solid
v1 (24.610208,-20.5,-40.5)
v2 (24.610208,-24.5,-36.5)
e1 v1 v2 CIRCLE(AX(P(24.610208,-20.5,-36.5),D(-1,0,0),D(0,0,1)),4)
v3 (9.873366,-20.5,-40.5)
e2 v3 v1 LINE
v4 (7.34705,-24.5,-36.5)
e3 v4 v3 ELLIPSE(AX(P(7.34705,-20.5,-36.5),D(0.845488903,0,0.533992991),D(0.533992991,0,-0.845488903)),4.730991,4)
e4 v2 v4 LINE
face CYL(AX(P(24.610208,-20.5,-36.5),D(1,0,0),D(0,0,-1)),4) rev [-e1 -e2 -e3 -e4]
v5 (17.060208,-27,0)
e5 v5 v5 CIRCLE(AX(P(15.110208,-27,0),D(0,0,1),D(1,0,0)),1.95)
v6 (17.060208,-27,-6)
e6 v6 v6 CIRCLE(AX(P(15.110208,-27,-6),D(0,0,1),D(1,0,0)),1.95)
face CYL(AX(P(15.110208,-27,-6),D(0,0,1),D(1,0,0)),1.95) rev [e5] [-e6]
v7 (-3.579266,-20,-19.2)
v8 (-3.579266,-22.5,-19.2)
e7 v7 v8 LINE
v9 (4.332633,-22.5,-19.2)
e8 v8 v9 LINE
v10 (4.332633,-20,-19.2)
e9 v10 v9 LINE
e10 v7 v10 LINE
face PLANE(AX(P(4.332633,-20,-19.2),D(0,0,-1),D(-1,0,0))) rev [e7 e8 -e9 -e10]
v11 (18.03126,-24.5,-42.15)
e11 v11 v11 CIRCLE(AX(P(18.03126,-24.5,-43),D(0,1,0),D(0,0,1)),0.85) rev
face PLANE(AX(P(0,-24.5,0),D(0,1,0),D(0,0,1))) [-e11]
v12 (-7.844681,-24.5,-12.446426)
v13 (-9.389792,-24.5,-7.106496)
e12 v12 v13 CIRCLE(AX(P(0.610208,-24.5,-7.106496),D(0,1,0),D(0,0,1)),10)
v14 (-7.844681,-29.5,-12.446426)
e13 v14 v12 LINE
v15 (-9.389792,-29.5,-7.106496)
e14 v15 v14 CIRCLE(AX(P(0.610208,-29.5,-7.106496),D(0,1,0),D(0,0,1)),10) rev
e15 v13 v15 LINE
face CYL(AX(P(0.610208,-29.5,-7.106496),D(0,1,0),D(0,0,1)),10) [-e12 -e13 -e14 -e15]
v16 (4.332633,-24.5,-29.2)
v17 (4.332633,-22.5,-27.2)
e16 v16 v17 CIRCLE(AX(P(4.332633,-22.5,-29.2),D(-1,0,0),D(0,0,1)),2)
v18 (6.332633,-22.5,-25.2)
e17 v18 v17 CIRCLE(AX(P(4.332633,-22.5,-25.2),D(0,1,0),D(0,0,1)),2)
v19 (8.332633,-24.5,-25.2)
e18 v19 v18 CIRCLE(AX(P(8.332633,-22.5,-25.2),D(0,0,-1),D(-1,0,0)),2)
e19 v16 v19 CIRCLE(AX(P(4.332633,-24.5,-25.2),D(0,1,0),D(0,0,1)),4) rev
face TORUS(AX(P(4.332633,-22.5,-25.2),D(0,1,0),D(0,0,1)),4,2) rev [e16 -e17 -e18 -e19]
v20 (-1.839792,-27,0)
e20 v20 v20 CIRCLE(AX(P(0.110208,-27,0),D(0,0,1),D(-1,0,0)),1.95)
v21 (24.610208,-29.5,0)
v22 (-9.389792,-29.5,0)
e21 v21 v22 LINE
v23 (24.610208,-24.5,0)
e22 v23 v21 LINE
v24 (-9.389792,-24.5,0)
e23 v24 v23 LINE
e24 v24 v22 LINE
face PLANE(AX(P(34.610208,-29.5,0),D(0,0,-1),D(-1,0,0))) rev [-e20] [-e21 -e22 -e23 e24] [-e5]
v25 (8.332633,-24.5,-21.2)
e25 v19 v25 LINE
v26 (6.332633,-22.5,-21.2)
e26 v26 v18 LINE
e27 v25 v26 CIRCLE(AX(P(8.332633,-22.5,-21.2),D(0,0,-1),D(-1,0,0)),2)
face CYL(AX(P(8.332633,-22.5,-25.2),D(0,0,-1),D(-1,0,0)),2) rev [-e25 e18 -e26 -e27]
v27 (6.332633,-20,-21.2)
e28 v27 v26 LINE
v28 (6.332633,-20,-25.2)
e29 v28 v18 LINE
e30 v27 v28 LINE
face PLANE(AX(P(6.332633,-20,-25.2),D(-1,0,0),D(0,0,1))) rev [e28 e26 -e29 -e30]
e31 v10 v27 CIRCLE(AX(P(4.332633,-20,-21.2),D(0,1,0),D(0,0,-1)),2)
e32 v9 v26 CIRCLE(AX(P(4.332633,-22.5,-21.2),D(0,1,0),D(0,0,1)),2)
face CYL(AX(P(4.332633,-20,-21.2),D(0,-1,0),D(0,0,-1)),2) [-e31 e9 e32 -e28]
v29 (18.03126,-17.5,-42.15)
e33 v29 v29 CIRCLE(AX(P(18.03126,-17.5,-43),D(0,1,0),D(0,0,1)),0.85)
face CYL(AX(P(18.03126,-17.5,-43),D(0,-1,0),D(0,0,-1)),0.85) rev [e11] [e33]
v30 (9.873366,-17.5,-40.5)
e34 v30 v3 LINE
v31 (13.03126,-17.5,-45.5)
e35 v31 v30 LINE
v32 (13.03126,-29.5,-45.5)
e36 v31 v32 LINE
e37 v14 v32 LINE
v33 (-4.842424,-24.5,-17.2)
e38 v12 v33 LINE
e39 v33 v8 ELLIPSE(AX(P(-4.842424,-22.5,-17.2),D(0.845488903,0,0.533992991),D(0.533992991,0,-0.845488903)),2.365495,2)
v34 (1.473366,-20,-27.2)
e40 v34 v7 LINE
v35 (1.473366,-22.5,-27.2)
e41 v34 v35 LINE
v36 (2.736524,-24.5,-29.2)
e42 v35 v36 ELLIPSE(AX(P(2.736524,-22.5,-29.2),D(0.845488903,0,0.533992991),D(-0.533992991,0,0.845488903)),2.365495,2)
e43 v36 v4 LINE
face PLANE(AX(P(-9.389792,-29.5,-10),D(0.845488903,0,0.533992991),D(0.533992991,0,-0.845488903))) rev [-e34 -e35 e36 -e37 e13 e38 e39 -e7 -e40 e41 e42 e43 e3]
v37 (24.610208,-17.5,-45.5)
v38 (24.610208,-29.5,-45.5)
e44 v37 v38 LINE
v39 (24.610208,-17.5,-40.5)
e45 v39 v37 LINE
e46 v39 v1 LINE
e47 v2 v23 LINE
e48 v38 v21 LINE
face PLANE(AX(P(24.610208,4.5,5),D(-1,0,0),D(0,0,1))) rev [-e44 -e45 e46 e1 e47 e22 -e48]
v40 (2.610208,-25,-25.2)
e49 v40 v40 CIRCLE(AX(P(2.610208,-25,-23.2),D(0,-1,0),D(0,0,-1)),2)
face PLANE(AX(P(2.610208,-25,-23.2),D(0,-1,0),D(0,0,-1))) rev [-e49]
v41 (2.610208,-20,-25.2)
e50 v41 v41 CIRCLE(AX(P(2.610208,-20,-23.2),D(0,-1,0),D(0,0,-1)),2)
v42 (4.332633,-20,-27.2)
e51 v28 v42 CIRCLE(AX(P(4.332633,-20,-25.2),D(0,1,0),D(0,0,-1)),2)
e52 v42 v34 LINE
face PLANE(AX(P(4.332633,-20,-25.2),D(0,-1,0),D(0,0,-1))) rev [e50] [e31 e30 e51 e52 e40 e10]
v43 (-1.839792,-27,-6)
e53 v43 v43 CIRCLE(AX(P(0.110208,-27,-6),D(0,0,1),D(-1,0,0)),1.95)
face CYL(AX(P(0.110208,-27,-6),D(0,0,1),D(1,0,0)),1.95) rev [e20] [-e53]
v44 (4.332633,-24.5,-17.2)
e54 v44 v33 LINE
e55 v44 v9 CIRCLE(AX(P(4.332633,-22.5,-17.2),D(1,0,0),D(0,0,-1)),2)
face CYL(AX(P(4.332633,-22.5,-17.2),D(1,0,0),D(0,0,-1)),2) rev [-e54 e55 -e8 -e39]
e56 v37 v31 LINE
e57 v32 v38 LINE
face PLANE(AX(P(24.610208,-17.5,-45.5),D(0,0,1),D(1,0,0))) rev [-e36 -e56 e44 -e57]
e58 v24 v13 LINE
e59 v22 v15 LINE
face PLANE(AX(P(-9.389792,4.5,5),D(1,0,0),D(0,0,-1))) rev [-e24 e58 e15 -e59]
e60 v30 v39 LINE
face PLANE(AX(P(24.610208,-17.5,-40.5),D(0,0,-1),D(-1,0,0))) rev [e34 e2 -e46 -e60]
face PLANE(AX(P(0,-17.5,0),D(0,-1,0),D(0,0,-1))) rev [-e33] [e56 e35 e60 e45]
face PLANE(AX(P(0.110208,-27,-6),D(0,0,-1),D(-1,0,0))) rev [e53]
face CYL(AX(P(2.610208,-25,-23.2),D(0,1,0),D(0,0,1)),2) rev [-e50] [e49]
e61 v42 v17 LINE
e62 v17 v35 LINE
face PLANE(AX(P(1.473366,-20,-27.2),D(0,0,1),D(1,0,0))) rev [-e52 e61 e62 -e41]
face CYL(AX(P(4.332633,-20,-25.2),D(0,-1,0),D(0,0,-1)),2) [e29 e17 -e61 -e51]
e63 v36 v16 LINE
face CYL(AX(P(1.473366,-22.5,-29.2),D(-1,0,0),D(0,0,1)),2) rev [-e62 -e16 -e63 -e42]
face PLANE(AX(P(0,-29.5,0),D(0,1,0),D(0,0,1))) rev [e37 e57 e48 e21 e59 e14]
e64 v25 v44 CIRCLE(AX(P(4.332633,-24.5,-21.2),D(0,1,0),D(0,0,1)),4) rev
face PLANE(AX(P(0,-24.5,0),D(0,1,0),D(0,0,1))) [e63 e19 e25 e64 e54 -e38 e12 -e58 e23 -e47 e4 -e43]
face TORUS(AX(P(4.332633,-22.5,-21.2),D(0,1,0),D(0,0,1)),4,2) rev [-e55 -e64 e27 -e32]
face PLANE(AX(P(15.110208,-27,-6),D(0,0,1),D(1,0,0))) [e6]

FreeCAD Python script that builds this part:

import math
import FreeCAD as App
import Part
import Sketcher


def edges_at(feature, points):
    """Names of the edges that pass closest to the given points."""
    edges = feature.Shape.Edges
    near = lambda p: min(range(len(edges)), key=lambda i: edges[i].distToShape(Part.Vertex(*p))[0])
    return sorted({f"Edge{near(p) + 1}" for p in points})


def add_polygon(sketch, points):
    """Adds a closed chain of lines whose ends are joined by coincident constraints."""
    first, n = sketch.GeometryCount, len(points)
    for a, b in zip(points, points[1:] + points[:1]):
        sketch.addGeometry(Part.LineSegment(App.Vector(*a, 0), App.Vector(*b, 0)), False)
    for i in range(n):
        sketch.addConstraint(Sketcher.Constraint("Coincident", first + i, 2, first + (i + 1) % n, 1))

doc = App.newDocument("Part")
body = doc.addObject("PartDesign::Body", "Body")

# Sketch on XY plane
sketch1 = body.newObject("Sketcher::SketchObject", "Sketch")
sketch1.AttachmentSupport = (doc.getObject("XY_Plane"), [""])
sketch1.MapMode = "FlatFace"
add_polygon(sketch1, [(-9.4, 4.5), (-9.4, -24.5), (24.6, -24.5), (24.6, 4.5)])  # lines 0-3
sketch1.addGeometry(Part.Circle(App.Vector(0, -20, 0), App.Vector(0, 0, 1), 1.5), False)  # 4
sketch1.addGeometry(Part.Circle(App.Vector(15, -20, 0), App.Vector(0, 0, 1), 1.4), False)  # 5
sketch1.addGeometry(Part.Circle(App.Vector(0, 0, 0), App.Vector(0, 0, 1), 1.5), False)  # 6
sketch1.addGeometry(Part.Circle(App.Vector(15, 0, 0), App.Vector(0, 0, 1), 1.4), False)  # 7
sketch1.addConstraint([
    Sketcher.Constraint("Vertical", 0),
    Sketcher.Constraint("Horizontal", 1),
    Sketcher.Constraint("Vertical", 2),
    Sketcher.Constraint("Horizontal", 3),
    Sketcher.Constraint("Equal", 4, 6),
    Sketcher.Constraint("Equal", 5, 7),
    Sketcher.Constraint("PointOnObject", 6, 3, -1),
    Sketcher.Constraint("PointOnObject", 7, 3, -1),
    Sketcher.Constraint("Horizontal", 4, 3, 5, 3),
    Sketcher.Constraint("Vertical", 4, 3, 6, 3),
    Sketcher.Constraint("Vertical", 5, 3, 7, 3),
    Sketcher.Constraint("Diameter", 4, 3.0),
    Sketcher.Constraint("Diameter", 5, 2.8),
    Sketcher.Constraint("DistanceX", 1, 1, 1, 2, 34.0),
    Sketcher.Constraint("DistanceY", 0, 2, 0, 1, 29.0),
    Sketcher.Constraint("DistanceY", 4, 3, -1, 1, 20.0),
    Sketcher.Constraint("DistanceX", 4, 3, 5, 3, 15.0),
    Sketcher.Constraint("DistanceY", 0, 2, -1, 1, 24.5),
    Sketcher.Constraint("DistanceX", 0, 2, 4, 3, 9.4),
    Sketcher.Constraint("DistanceX", -1, 1, 4, 3, 0.010208),
])
pad1 = body.newObject("PartDesign::Pad", "Pad")
pad1.Profile = sketch1
pad1.Length = 5

# Sketch on XZ plane
sketch2 = body.newObject("Sketcher::SketchObject", "Sketch001")
sketch2.AttachmentSupport = (doc.getObject("XZ_Plane"), [""])
sketch2.MapMode = "FlatFace"
sketch2.AttachmentOffset = App.Placement(App.Vector(0, 0, 24.5), App.Rotation())
add_polygon(sketch2, [(-9, 5), (-9, -10), (15, -48), (25, -48), (25, 5)])  # lines 0-4
sketch2.addConstraint([
    Sketcher.Constraint("Vertical", 0),
    Sketcher.Constraint("Horizontal", 2),
    Sketcher.Constraint("Vertical", 3),
    Sketcher.Constraint("Horizontal", 4),
    Sketcher.Constraint("DistanceX", 2, 1, 2, 2, 10.0),
    Sketcher.Constraint("DistanceX", 4, 2, 4, 1, 34.0),
    Sketcher.Constraint("DistanceY", 0, 2, 0, 1, 15.0),
    Sketcher.Constraint("DistanceY", 3, 1, 3, 2, 53.0),
    Sketcher.Constraint("DistanceY", 0, 2, -1, 1, 10.0),
    Sketcher.Constraint("DistanceX", 0, 2, -1, 1, 9.389792),
])
pad2 = body.newObject("PartDesign::Pad", "Pad001")
pad2.Profile = sketch2
pad2.Length = 5

# Sketch on XZ plane
sketch3 = body.newObject("Sketcher::SketchObject", "Sketch002")
sketch3.AttachmentSupport = (doc.getObject("XZ_Plane"), [""])
sketch3.MapMode = "FlatFace"
sketch3.AttachmentOffset = App.Placement(App.Vector(0, 0, 24.5), App.Rotation())
add_polygon(sketch3, [(9.9, -40.5), (24.6, -40.5), (24.6, -45.5), (13, -45.5)])  # lines 0-3
sketch3.addGeometry(Part.Circle(App.Vector(18, -43, 0), App.Vector(0, 0, 1), 0.8), False)  # 4
sketch3.addConstraint([
    Sketcher.Constraint("Horizontal", 0),
    Sketcher.Constraint("Vertical", 1),
    Sketcher.Constraint("Horizontal", 2),
    Sketcher.Constraint("Diameter", 4, 1.7),
    Sketcher.Constraint("DistanceY", 1, 2, 1, 1, 5.0),
    Sketcher.Constraint("DistanceY", 4, 3, -1, 1, 43.0),
    Sketcher.Constraint("DistanceX", 2, 2, 4, 3, 5.0),
    Sketcher.Constraint("DistanceY", 0, 2, -1, 1, 40.5),
    Sketcher.Constraint("Distance", 3, 5.913738),
    Sketcher.Constraint("DistanceX", 0, 1, 0, 2, 14.736842),
    Sketcher.Constraint("DistanceX", -1, 1, 4, 3, 18.03126),
])
pad3 = body.newObject("PartDesign::Pad", "Pad002")
pad3.Profile = sketch3
pad3.Length = 7
pad3.Reversed = True

# Sketch on XZ plane
sketch4 = body.newObject("Sketcher::SketchObject", "Sketch003")
sketch4.AttachmentSupport = (doc.getObject("XZ_Plane"), [""])
sketch4.MapMode = "FlatFace"
sketch4.AttachmentOffset = App.Placement(App.Vector(0, 0, 24.5), App.Rotation())
add_polygon(sketch4, [(13, -45.5), (24.6, -45.5), (24.6, -48), (14.6, -48)])  # lines 0-3
sketch4.addConstraint([
    Sketcher.Constraint("Horizontal", 0),
    Sketcher.Constraint("Vertical", 1),
    Sketcher.Constraint("Horizontal", 2),
    Sketcher.Constraint("DistanceX", 2, 2, 2, 1, 10.0),
    Sketcher.Constraint("DistanceY", 1, 2, 1, 1, 2.5),
    Sketcher.Constraint("DistanceY", 1, 2, -1, 1, 48.0),
    Sketcher.Constraint("Distance", 3, 2.956869),
    Sketcher.Constraint("DistanceX", -1, 1, 3, 2, 13.03126),
])
pocket1 = body.newObject("PartDesign::Pocket", "Pocket")
pocket1.Profile = sketch4
pocket1.Length = 5
pocket1.Reversed = True
doc.recompute()

fillet = body.newObject("PartDesign::Fillet", "Fillet")
fillet.Base = (pocket1, edges_at(pocket1, [(17.242, -24.5, -40.5)]))
fillet.Radius = 4

# Sketch on YZ plane
sketch5 = body.newObject("Sketcher::SketchObject", "Sketch004")
sketch5.AttachmentSupport = (doc.getObject("YZ_Plane"), [""])
sketch5.MapMode = "FlatFace"
sketch5.AttachmentOffset = App.Placement(App.Vector(0, 0, -9.389792), App.Rotation())
add_polygon(sketch5, [(4, 0), (-30, 0), (-30, 5), (4, 5)])  # lines 0-3
sketch5.addConstraint([
    Sketcher.Constraint("Horizontal", 0),
    Sketcher.Constraint("Vertical", 1),
    Sketcher.Constraint("Horizontal", 2),
    Sketcher.Constraint("Vertical", 3),
    Sketcher.Constraint("PointOnObject", 0, 2, -1),
    Sketcher.Constraint("DistanceX", 0, 2, 0, 1, 34.0),
    Sketcher.Constraint("DistanceY", 1, 1, 1, 2, 5.0),
    Sketcher.Constraint("DistanceX", 0, 2, -1, 1, 29.5),
])
pocket2 = body.newObject("PartDesign::Pocket", "Pocket001")
pocket2.Profile = sketch5
pocket2.Length = 44
pocket2.Reversed = True

# Sketch on XY plane
sketch6 = body.newObject("Sketcher::SketchObject", "Sketch005")
sketch6.AttachmentSupport = (doc.getObject("XY_Plane"), [""])
sketch6.MapMode = "FlatFace"
sketch6.addGeometry([
    Part.Circle(App.Vector(15.1, -27, 0), App.Vector(0, 0, 1), 1.9),
    Part.Circle(App.Vector(0.1, -27, 0), App.Vector(0, 0, 1), 1.9),
], False)
sketch6.addConstraint([
    Sketcher.Constraint("Equal", 0, 1),
    Sketcher.Constraint("Horizontal", 0, 3, 1, 3),
    Sketcher.Constraint("Diameter", 0, 3.9),
    Sketcher.Constraint("DistanceY", 0, 3, -1, 1, 27.0),
    Sketcher.Constraint("DistanceX", 1, 3, 0, 3, 15.0),
    Sketcher.Constraint("DistanceX", -1, 1, 0, 3, 15.110208),
])
pocket3 = body.newObject("PartDesign::Pocket", "Pocket002")
pocket3.Profile = sketch6
pocket3.Length = 6
doc.recompute()

fillet2 = body.newObject("PartDesign::Fillet", "Fillet001")
fillet2.Base = (pocket3, edges_at(pocket3, [(-9.39, -27, -10)]))
fillet2.Radius = 10

# Sketch on XZ plane
sketch7 = body.newObject("Sketcher::SketchObject", "Sketch006")
sketch7.AttachmentSupport = (doc.getObject("XZ_Plane"), [""])
sketch7.MapMode = "FlatFace"
sketch7.AttachmentOffset = App.Placement(App.Vector(0, 0, 24.5), App.Rotation())
sketch7.addGeometry([
    Part.LineSegment(App.Vector(4.3, -27.2, 0), App.Vector(1.5, -27.2, 0)),  # 0
    Part.LineSegment(App.Vector(1.5, -27.2, 0), App.Vector(-3.6, -19.2, 0)),  # 1
    Part.LineSegment(App.Vector(-3.6, -19.2, 0), App.Vector(4.3, -19.2, 0)),  # 2
    Part.ArcOfCircle(Part.Circle(App.Vector(4.3, -21.2, 0), App.Vector(0, 0, 1), 2), math.radians(0), math.radians(90)),  # 3
    Part.LineSegment(App.Vector(6.3, -21.2, 0), App.Vector(6.3, -25.2, 0)),  # 4
    Part.ArcOfCircle(Part.Circle(App.Vector(4.3, -25.2, 0), App.Vector(0, 0, 1), 2), math.radians(-90), math.radians(0)),  # 5
], False)
sketch7.addConstraint([
    Sketcher.Constraint("Coincident", 0, 2, 1, 1),
    Sketcher.Constraint("Coincident", 1, 2, 2, 1),
    Sketcher.Constraint("Tangent", 2, 2, 3, 2),
    Sketcher.Constraint("Tangent", 3, 1, 4, 1),
    Sketcher.Constraint("Tangent", 4, 2, 5, 2),
    Sketcher.Constraint("Tangent", 5, 1, 0, 1),
    Sketcher.Constraint("Horizontal", 0),
    Sketcher.Constraint("Horizontal", 2),
    Sketcher.Constraint("Vertical", 4),
    Sketcher.Constraint("Equal", 3, 5),
    Sketcher.Constraint("Radius", 3, 2.0),
    Sketcher.Constraint("DistanceY", 4, 2, 4, 1, 4.0),
    Sketcher.Constraint("DistanceY", 3, 3, -1, 1, 21.2),
    Sketcher.Constraint("DistanceX", 2, 1, 2, 2, 7.911899),
    Sketcher.Constraint("Distance", 1, 9.461981),
    Sketcher.Constraint("DistanceX", -1, 1, 3, 3, 4.332633),
])
pad4 = body.newObject("PartDesign::Pad", "Pad003")
pad4.Profile = sketch7
pad4.Length = 4.5
pad4.Reversed = True

# Sketch on XZ plane
sketch8 = body.newObject("Sketcher::SketchObject", "Sketch007")
sketch8.AttachmentSupport = (doc.getObject("XZ_Plane"), [""])
sketch8.MapMode = "FlatFace"
sketch8.AttachmentOffset = App.Placement(App.Vector(0, 0, 20), App.Rotation())
sketch8.addGeometry(Part.Circle(App.Vector(2.6, -23.2, 0), App.Vector(0, 0, 1), 2), False)
sketch8.addConstraint([
    Sketcher.Constraint("Diameter", 0, 4.0),
    Sketcher.Constraint("DistanceY", 0, 3, -1, 1, 23.2),
    Sketcher.Constraint("DistanceX", -1, 1, 0, 3, 2.610208),
])
pocket4 = body.newObject("PartDesign::Pocket", "Pocket003")
pocket4.Profile = sketch8
pocket4.Length = 5
pocket4.Reversed = True
doc.recompute()

fillet3 = body.newObject("PartDesign::Fillet", "Fillet002")
fillet3.Base = (pocket4, edges_at(pocket4, [
    (0.377, -24.5, -19.2),
    (5.747, -24.5, -19.786),
    (6.333, -24.5, -23.2),
    (5.747, -24.5, -26.614),
    (2.903, -24.5, -27.2),
]))
fillet3.Radius = 2

doc.recompute()
